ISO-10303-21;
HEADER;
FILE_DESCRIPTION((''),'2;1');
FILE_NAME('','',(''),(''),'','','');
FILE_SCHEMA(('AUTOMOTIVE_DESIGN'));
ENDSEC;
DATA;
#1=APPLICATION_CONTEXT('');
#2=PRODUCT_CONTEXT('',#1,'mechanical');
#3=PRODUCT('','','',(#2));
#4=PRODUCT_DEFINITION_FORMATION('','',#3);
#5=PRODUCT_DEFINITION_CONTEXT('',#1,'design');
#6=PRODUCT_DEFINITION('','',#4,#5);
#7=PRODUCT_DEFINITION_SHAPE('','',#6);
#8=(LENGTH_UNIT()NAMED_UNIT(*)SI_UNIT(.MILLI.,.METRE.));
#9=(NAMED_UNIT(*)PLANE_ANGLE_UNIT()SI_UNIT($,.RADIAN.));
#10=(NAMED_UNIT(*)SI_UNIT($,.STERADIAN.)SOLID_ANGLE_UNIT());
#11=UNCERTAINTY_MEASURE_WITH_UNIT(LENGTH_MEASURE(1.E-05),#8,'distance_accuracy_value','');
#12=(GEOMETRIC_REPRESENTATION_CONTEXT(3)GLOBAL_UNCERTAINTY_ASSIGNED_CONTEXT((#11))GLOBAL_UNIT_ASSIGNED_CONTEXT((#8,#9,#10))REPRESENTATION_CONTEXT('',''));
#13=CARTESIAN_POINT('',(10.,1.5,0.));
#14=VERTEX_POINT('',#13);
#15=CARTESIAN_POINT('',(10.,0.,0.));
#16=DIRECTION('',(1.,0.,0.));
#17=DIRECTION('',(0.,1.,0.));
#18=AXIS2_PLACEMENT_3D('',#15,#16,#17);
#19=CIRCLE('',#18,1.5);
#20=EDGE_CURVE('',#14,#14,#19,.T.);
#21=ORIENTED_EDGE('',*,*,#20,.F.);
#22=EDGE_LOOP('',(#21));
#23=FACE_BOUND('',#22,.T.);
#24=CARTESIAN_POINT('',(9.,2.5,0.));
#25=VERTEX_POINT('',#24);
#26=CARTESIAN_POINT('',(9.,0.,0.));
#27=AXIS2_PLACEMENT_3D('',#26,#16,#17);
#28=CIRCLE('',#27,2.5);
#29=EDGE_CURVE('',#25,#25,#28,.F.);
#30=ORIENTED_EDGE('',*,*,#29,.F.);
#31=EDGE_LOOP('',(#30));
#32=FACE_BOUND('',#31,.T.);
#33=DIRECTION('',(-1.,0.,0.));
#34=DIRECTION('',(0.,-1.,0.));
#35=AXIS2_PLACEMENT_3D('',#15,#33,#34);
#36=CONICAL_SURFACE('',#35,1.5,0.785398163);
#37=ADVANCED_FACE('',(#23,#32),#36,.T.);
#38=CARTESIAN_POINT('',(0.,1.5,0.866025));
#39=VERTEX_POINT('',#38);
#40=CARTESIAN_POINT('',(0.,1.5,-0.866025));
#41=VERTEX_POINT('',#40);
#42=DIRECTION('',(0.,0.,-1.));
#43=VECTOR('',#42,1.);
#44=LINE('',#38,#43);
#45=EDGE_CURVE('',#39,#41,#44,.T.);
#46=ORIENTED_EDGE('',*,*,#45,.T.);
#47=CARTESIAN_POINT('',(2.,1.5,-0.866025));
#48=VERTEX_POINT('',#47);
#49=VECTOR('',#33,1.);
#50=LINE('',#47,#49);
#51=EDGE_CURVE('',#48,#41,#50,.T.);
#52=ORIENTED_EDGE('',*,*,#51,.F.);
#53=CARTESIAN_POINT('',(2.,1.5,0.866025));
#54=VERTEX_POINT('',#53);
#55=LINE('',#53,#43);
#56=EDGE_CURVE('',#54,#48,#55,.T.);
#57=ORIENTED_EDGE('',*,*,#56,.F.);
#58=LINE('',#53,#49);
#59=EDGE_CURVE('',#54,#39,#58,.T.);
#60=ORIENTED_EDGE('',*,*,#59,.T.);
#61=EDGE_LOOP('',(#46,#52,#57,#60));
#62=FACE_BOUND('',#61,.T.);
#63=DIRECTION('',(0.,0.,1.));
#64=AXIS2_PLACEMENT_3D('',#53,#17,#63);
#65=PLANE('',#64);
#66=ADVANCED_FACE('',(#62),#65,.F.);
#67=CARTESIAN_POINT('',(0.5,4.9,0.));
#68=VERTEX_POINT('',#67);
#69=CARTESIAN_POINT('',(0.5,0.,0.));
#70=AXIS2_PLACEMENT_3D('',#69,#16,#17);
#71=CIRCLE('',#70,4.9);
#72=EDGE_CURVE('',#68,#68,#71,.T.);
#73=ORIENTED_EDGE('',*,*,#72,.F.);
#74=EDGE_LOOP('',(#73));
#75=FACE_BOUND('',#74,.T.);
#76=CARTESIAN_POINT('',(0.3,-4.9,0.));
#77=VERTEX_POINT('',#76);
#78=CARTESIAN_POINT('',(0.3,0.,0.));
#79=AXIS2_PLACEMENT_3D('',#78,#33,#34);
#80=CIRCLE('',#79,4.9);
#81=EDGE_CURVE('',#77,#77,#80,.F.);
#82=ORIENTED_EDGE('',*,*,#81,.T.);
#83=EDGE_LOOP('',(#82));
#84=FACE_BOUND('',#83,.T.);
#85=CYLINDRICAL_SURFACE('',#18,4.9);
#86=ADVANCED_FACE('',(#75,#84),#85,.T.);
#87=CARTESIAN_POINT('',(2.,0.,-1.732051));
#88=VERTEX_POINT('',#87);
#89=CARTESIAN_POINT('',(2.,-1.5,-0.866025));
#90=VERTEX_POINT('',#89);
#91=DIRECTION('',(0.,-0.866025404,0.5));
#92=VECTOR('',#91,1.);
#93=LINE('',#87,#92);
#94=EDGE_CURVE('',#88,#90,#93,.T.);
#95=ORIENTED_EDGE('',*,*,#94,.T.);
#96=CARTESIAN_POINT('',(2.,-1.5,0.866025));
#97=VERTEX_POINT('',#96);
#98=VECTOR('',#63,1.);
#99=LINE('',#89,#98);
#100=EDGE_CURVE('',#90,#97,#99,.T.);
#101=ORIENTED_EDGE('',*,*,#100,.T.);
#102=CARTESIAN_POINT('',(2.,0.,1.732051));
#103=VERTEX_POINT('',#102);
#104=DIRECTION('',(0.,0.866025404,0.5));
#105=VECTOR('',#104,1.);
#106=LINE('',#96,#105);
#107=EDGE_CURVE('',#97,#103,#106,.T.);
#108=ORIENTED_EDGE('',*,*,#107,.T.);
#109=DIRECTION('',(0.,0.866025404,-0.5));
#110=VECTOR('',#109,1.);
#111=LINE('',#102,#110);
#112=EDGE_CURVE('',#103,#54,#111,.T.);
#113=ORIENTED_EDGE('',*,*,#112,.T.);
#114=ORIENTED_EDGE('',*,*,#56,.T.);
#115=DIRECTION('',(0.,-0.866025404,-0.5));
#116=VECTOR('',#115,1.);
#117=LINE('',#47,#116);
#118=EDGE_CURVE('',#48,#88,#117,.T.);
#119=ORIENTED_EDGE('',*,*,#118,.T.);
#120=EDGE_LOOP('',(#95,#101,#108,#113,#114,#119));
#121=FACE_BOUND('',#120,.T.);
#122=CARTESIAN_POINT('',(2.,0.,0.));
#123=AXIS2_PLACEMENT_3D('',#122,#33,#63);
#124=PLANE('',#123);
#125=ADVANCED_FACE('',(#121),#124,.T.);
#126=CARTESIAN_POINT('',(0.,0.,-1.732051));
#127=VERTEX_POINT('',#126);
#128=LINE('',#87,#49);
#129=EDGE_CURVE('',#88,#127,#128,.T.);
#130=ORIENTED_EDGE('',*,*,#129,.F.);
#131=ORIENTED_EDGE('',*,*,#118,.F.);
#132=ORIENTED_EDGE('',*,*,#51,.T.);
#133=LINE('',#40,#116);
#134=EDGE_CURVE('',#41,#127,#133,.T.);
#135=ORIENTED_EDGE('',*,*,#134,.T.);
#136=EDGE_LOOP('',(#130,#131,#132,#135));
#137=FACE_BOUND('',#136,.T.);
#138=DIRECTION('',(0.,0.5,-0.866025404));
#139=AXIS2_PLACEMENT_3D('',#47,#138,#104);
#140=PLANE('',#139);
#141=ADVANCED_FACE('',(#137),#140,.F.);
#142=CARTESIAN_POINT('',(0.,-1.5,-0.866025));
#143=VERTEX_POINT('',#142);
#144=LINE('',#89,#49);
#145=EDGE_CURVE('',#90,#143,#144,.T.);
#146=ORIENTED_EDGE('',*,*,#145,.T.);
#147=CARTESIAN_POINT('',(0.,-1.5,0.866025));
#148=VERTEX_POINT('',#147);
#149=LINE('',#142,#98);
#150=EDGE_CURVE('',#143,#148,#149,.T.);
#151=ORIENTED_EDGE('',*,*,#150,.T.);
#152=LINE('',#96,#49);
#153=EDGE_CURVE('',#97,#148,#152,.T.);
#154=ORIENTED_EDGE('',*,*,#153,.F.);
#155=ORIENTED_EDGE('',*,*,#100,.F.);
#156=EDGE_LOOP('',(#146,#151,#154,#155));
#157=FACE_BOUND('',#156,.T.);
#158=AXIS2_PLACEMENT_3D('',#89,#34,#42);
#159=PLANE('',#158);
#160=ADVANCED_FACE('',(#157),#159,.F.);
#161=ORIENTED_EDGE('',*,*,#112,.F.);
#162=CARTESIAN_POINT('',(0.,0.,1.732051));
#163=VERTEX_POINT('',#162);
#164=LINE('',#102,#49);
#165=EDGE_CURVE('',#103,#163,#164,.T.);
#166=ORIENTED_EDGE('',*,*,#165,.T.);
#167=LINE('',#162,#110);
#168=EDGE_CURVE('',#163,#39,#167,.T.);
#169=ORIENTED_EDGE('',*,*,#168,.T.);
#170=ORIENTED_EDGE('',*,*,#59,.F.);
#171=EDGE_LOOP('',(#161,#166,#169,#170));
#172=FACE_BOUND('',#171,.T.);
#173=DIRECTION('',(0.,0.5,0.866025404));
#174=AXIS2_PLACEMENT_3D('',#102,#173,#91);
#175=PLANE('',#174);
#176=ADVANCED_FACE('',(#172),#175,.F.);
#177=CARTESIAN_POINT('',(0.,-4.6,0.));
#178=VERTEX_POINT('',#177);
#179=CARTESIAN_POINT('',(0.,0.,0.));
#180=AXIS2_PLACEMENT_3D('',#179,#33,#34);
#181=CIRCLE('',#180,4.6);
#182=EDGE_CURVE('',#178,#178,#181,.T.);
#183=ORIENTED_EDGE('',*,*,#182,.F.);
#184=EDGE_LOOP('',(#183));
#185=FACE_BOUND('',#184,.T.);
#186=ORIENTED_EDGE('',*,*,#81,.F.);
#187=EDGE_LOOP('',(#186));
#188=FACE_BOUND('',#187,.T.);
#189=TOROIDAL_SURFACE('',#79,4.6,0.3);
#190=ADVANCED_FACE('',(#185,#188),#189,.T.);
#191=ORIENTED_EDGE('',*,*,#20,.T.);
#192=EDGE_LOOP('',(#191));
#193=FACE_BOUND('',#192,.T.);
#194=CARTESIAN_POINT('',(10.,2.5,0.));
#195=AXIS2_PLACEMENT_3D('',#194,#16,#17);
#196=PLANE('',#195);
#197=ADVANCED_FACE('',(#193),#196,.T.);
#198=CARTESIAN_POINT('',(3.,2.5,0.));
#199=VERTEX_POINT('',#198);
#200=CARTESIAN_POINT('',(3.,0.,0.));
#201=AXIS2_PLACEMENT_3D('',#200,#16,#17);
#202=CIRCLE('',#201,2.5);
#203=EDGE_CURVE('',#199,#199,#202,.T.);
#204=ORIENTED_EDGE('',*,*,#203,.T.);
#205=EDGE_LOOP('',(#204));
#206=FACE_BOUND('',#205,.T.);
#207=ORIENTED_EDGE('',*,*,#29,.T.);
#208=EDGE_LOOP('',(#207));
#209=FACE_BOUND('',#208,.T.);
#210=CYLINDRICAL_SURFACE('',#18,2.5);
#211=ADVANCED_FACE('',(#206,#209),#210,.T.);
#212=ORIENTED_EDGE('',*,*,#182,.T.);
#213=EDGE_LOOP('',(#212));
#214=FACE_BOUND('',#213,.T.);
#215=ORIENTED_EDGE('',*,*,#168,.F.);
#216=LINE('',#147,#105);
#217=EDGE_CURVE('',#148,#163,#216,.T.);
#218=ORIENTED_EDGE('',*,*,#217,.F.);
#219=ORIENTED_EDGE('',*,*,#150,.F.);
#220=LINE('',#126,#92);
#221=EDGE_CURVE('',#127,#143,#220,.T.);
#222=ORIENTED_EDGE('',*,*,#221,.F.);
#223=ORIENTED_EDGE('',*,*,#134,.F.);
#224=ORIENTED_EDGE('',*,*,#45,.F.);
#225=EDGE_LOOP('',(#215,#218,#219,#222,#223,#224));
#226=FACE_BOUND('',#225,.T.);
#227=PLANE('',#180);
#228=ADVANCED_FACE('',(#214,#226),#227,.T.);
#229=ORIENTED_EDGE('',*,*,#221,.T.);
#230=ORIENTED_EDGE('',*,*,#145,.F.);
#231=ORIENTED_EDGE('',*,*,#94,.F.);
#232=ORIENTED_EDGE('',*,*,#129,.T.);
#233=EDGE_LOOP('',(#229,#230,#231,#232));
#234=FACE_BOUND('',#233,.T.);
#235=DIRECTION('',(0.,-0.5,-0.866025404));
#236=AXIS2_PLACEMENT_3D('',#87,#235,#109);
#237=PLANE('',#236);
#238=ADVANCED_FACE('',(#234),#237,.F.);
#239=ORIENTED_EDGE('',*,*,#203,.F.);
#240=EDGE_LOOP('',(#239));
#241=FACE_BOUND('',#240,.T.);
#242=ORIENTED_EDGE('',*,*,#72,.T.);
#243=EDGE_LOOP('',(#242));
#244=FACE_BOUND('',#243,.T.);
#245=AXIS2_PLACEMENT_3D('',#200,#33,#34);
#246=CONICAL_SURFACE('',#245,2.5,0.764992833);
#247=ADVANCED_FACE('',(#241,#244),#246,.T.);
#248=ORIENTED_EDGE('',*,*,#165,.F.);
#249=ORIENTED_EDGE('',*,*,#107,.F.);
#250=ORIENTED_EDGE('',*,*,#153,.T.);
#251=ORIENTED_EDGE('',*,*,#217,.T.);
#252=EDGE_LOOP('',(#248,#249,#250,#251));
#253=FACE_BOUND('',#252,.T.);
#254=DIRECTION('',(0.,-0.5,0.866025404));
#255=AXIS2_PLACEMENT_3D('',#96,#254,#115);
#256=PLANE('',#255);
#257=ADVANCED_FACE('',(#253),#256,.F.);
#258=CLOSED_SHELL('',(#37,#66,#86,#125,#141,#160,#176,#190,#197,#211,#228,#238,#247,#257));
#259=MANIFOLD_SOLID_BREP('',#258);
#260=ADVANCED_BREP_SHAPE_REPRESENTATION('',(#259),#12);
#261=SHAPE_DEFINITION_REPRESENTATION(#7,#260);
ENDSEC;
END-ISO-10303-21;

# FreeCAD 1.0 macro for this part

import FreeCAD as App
import Part
import Sketcher

V = App.Vector
Q = App.Units.Quantity


def edges_at(feature, points):
    """Names of the edges that pass closest to the given points."""
    edges = feature.Shape.Edges
    near = lambda p: min(range(len(edges)), key=lambda i: edges[i].distToShape(Part.Vertex(*p))[0])
    return sorted({f"Edge{near(p) + 1}" for p in points})


def add_polygon(sketch, points):
    """Adds a closed chain of lines whose ends are joined by coincident constraints."""
    first, n = sketch.GeometryCount, len(points)
    for a, b in zip(points, points[1:] + points[:1]):
        sketch.addGeometry(Part.LineSegment(App.Vector(*a, 0), App.Vector(*b, 0)), False)
    for i in range(n):
        sketch.addConstraint(Sketcher.Constraint("Coincident", first + i, 2, first + (i + 1) % n, 1))

doc = App.newDocument("Part")
params = doc.addObject("Spreadsheet::Sheet", "Params")
for row, (alias, value) in enumerate([
    ("sketch1_width", "10 mm"),
    ("sketch1_width2", "7 mm"),
    ("sketch1_width3", "0.5 mm"),
    ("sketch1_height", "4.9 mm"),
    ("sketch1_height2", "2.5 mm"),
    ("revolution_angle", "360 deg"),
    ("pocket1_length", "2 mm"),
    ("fillet_radius", "0.3 mm"),
    ("chamfer_size", "1 mm"),
], start=1):
    params.set(f"A{row}", alias)
    params.set(f"B{row}", "=" + value)
    params.setAlias(f"B{row}", alias)

body = doc.addObject("PartDesign::Body", "Body")

sketch1 = body.newObject("Sketcher::SketchObject", "Sketch")
sketch1.AttachmentSupport = (doc.getObject("XY_Plane"), [""])
sketch1.MapMode = "FlatFace"
add_polygon(sketch1, [(0, 4.9), (0, 0), (10, 0), (10, 2.5), (3, 2.5), (0.5, 4.9)])
sketch1.addConstraint(Sketcher.Constraint("Vertical", 0))
sketch1.addConstraint(Sketcher.Constraint("Horizontal", 1))
sketch1.addConstraint(Sketcher.Constraint("Vertical", 2))
sketch1.addConstraint(Sketcher.Constraint("Horizontal", 3))
sketch1.addConstraint(Sketcher.Constraint("Horizontal", 5))
sketch1.addConstraint(Sketcher.Constraint("Coincident", 0, 2, -1, 1))
sketch1.addConstraint(Sketcher.Constraint("DistanceX", 1, 1, 1, 2, 10.0))
sketch1.addConstraint(Sketcher.Constraint("DistanceX", 3, 2, 3, 1, 7.0))
sketch1.addConstraint(Sketcher.Constraint("DistanceX", 5, 2, 5, 1, 0.5))
sketch1.addConstraint(Sketcher.Constraint("DistanceY", 0, 2, 0, 1, 4.9))
sketch1.addConstraint(Sketcher.Constraint("DistanceY", 2, 1, 2, 2, 2.5))
sketch1.setExpression("Constraints[12]", "Params.sketch1_width")
sketch1.setExpression("Constraints[13]", "Params.sketch1_width2")
sketch1.setExpression("Constraints[14]", "Params.sketch1_width3")
sketch1.setExpression("Constraints[15]", "Params.sketch1_height")
sketch1.setExpression("Constraints[16]", "Params.sketch1_height2")
revolution = body.newObject("PartDesign::Revolution", "Revolution")
revolution.Profile = sketch1
revolution.ReferenceAxis = (sketch1, ["H_Axis"])
revolution.setExpression("Angle", "Params.revolution_angle")

sketch2 = body.newObject("Sketcher::SketchObject", "Sketch001")
sketch2.AttachmentSupport = (doc.getObject("YZ_Plane"), [""])
sketch2.MapMode = "FlatFace"
add_polygon(sketch2, [(1.5, 0.866025), (1.5, -0.866025), (0, -1.732051), (-1.5, -0.866025), (-1.5, 0.866025), (0, 1.732051)])
sketch2.addConstraint(Sketcher.Constraint("Vertical", 0))
sketch2.addConstraint(Sketcher.Constraint("Vertical", 3))
sketch2.addConstraint(Sketcher.Constraint("Symmetric", 0, 2, 3, 2, -1, 1))
sketch2.addConstraint(Sketcher.Constraint("Symmetric", 1, 2, 4, 2, -1, 1))
sketch2.addConstraint(Sketcher.Constraint("PointOnObject", 1, 2, -2))
sketch2.addConstraint(Sketcher.Constraint("Parallel", 2, 5))
sketch2.addConstraint(Sketcher.Constraint("Horizontal", 0, 2, 2, 2))
sketch2.addConstraint(Sketcher.Constraint("Angle", 1, Q("-150 deg")))
sketch2.addConstraint(Sketcher.Constraint("DistanceX", 2, 2, 0, 2, 3.0))
sketch2.addConstraint(Sketcher.Constraint("DistanceY", 0, 2, 0, 1, 1.732051))
pocket1 = body.newObject("PartDesign::Pocket", "Pocket")
pocket1.Profile = sketch2
pocket1.setExpression("Length", "Params.pocket1_length")
pocket1.Reversed = True
doc.recompute()

fillet = body.newObject("PartDesign::Fillet", "Fillet")
fillet.Base = (pocket1, edges_at(pocket1, [(0, -4.9, 0)]))
fillet.setExpression("Radius", "Params.fillet_radius")
doc.recompute()

chamfer = body.newObject("PartDesign::Chamfer", "Chamfer")
chamfer.Base = (fillet, edges_at(fillet, [(10, -2.5, 0)]))
chamfer.setExpression("Size", "Params.chamfer_size")

doc.recompute()
